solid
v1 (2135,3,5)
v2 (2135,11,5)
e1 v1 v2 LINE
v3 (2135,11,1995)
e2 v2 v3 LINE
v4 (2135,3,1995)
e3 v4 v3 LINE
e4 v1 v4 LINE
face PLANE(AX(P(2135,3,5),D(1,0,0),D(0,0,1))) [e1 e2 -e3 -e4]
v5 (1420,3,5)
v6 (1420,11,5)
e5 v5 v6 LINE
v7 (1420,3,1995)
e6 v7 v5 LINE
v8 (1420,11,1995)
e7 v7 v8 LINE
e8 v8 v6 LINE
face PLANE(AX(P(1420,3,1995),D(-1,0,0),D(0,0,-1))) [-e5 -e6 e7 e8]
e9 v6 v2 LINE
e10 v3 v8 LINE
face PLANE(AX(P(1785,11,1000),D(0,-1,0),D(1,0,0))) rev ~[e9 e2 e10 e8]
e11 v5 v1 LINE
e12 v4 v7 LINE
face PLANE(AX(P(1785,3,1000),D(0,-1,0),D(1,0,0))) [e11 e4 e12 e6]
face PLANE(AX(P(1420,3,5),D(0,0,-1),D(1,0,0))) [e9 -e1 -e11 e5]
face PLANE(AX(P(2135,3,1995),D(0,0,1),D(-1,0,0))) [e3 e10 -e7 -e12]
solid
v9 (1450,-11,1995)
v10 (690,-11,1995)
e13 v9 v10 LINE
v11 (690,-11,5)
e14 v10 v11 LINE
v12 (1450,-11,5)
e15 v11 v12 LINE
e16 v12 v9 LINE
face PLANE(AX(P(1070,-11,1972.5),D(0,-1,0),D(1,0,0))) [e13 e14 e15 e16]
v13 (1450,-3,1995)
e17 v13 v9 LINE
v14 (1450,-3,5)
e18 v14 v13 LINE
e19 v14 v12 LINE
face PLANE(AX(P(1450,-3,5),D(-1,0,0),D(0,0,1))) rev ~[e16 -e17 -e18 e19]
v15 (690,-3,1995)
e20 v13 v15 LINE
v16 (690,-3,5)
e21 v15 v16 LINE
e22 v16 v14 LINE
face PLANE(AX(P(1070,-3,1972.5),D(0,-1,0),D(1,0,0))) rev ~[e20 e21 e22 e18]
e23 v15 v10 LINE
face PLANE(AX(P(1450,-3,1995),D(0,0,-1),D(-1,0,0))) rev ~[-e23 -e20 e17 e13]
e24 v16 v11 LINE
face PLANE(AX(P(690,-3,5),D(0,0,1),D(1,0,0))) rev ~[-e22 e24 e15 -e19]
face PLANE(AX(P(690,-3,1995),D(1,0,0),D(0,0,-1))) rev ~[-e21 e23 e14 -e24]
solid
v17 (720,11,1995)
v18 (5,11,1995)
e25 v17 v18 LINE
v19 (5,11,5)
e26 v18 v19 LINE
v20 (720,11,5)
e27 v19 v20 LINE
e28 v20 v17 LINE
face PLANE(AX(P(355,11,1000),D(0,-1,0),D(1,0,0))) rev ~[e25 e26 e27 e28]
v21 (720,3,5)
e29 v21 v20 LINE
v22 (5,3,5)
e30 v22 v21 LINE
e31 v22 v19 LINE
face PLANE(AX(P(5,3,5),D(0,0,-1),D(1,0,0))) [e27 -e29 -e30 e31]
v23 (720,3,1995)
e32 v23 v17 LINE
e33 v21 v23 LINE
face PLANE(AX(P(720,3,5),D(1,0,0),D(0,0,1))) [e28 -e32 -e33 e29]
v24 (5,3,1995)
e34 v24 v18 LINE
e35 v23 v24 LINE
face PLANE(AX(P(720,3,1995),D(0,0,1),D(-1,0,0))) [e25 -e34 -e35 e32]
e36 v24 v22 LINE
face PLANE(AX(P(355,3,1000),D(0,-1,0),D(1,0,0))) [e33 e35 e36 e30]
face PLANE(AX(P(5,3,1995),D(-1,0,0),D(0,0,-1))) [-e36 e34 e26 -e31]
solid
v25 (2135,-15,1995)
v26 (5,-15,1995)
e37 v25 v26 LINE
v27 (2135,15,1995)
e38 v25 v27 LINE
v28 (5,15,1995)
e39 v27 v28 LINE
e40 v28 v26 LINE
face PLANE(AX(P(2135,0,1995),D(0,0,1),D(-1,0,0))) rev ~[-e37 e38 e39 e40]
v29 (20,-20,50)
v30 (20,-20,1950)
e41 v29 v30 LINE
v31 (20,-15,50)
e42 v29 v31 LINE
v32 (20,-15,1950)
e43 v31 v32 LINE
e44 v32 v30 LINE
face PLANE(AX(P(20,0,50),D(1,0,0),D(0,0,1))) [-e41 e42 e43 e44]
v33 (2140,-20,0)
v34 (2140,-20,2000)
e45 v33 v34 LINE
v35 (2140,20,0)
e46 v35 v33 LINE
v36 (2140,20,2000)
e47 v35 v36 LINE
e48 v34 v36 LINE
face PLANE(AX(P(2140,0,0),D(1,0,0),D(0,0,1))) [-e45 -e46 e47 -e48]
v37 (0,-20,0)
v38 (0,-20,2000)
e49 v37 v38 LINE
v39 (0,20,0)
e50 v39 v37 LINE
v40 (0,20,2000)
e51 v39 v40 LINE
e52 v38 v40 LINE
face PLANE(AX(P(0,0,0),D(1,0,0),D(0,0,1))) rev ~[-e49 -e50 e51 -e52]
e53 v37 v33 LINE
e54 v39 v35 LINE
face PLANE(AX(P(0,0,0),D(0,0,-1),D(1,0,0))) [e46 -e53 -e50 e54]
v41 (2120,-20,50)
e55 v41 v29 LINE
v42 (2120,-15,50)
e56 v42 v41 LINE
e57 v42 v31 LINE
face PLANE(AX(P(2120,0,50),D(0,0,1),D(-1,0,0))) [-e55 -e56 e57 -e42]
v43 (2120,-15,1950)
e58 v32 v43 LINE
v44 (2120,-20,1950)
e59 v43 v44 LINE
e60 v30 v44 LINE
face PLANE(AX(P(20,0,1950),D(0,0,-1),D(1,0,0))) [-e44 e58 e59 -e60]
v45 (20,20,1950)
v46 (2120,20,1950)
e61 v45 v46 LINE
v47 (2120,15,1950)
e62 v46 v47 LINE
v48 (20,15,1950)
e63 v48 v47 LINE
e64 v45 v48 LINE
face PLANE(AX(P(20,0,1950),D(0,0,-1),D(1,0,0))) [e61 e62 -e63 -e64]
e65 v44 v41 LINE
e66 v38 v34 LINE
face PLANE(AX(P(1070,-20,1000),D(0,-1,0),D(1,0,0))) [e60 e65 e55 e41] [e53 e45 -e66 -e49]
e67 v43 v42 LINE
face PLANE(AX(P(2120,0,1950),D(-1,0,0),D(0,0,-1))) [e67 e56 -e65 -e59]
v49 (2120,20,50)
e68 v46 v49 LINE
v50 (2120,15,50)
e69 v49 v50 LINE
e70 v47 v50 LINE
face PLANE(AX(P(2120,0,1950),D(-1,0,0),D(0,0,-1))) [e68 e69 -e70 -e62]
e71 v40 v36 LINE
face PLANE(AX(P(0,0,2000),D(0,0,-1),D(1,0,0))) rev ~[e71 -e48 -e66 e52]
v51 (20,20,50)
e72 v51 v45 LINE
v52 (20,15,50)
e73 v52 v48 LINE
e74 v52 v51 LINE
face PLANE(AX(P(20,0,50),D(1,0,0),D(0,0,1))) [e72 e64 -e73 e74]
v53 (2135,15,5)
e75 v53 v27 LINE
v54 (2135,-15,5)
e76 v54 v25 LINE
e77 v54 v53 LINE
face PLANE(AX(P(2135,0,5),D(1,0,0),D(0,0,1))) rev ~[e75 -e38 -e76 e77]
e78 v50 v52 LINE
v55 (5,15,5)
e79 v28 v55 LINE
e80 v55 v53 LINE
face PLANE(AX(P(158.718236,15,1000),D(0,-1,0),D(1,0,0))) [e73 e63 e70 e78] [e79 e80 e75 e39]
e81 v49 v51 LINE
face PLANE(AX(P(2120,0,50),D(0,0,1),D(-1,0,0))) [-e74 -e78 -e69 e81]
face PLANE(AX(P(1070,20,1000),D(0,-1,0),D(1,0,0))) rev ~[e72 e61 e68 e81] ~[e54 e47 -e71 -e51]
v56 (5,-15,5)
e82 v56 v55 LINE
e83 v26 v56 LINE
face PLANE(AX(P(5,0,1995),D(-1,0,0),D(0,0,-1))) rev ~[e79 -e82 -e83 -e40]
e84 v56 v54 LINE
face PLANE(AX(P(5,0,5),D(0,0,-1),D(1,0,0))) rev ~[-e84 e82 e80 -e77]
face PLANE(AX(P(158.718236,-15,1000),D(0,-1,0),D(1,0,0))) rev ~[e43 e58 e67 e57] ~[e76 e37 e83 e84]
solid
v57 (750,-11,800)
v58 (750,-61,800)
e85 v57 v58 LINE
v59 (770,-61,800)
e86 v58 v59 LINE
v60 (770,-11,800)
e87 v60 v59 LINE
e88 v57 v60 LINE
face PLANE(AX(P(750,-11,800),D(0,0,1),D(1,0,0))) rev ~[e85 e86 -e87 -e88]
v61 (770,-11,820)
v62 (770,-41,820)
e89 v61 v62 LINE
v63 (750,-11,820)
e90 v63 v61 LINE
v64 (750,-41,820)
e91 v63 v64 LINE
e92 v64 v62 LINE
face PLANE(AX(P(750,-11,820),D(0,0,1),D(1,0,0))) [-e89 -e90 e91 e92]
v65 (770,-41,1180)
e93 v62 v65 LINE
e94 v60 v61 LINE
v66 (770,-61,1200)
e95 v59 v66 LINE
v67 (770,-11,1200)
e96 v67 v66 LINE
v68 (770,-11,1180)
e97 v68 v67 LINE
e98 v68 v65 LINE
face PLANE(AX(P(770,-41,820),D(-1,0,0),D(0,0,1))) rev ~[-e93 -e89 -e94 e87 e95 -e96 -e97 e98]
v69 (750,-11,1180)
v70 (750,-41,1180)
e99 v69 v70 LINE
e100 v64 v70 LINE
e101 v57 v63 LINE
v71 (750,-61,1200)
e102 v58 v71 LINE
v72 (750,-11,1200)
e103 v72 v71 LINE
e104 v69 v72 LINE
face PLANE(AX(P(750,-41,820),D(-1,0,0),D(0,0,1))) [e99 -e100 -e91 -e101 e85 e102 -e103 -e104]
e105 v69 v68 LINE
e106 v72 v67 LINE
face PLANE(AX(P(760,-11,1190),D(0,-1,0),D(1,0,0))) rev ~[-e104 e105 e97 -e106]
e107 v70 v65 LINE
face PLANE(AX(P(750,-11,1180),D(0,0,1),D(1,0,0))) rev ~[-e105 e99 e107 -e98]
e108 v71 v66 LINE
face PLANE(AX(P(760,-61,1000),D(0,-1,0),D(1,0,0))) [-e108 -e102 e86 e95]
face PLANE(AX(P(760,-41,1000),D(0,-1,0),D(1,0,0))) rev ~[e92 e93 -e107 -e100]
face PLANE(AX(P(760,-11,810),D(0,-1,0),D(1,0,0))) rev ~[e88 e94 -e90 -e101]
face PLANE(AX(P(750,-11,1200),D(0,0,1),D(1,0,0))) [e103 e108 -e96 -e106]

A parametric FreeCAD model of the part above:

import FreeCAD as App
import Part
import Sketcher

doc = App.newDocument("Part")
body = doc.addObject("PartDesign::Body", "Body")

sketch1 = doc.addObject("Sketcher::SketchObject", "Sketch")
body.addObject(sketch1)
sketch1.AttachmentSupport = (doc.XZ_Plane, [""])
sketch1.MapMode = "FlatFace"
sketch1.addGeometry([
    Part.LineSegment(App.Vector(0, 2000, 0), App.Vector(0, 0, 0)),
    Part.LineSegment(App.Vector(0, 0, 0), App.Vector(2140, 0, 0)),
    Part.LineSegment(App.Vector(2140, 0, 0), App.Vector(2140, 2000, 0)),
    Part.LineSegment(App.Vector(2140, 2000, 0), App.Vector(0, 2000, 0)),
    Part.LineSegment(App.Vector(20, 50, 0), App.Vector(20, 1950, 0)),
    Part.LineSegment(App.Vector(20, 1950, 0), App.Vector(2120, 1950, 0)),
    Part.LineSegment(App.Vector(2120, 1950, 0), App.Vector(2120, 50, 0)),
    Part.LineSegment(App.Vector(2120, 50, 0), App.Vector(20, 50, 0)),
], False)
sketch1.addConstraint([
    Sketcher.Constraint("Coincident", 0, 2, 1, 1),
    Sketcher.Constraint("Coincident", 1, 2, 2, 1),
    Sketcher.Constraint("Coincident", 2, 2, 3, 1),
    Sketcher.Constraint("Coincident", 3, 2, 0, 1),
    Sketcher.Constraint("Coincident", 4, 2, 5, 1),
    Sketcher.Constraint("Coincident", 5, 2, 6, 1),
    Sketcher.Constraint("Coincident", 6, 2, 7, 1),
    Sketcher.Constraint("Coincident", 7, 2, 4, 1),
    Sketcher.Constraint("Vertical", 0),
    Sketcher.Constraint("Horizontal", 1),
    Sketcher.Constraint("Vertical", 2),
    Sketcher.Constraint("Horizontal", 3),
    Sketcher.Constraint("Vertical", 4),
    Sketcher.Constraint("Horizontal", 5),
    Sketcher.Constraint("Vertical", 6),
    Sketcher.Constraint("Horizontal", 7),
    Sketcher.Constraint("Coincident", 0, 2, -1, 1),
    Sketcher.Constraint("DistanceX", 1, 1, 1, 2, 2140.0),
    Sketcher.Constraint("DistanceX", 5, 1, 5, 2, 2100.0),
    Sketcher.Constraint("DistanceY", 0, 2, 0, 1, 2000.0),
    Sketcher.Constraint("DistanceY", 4, 1, 4, 2, 1900.0),
    Sketcher.Constraint("DistanceX", -1, 1, 4, 2, 20.0),
    Sketcher.Constraint("DistanceY", -1, 1, 4, 2, 1950.0),
])
pad1 = doc.addObject("PartDesign::Pad", "Pad")
body.addObject(pad1)
pad1.Profile = sketch1
pad1.Type = "TwoLengths"
pad1.Length = 20
pad1.Length2 = 20

sketch2 = doc.addObject("Sketcher::SketchObject", "Sketch001")
body.addObject(sketch2)
sketch2.AttachmentSupport = (doc.XZ_Plane, [""])
sketch2.MapMode = "FlatFace"
sketch2.addGeometry([
    Part.LineSegment(App.Vector(5, 1995, 0), App.Vector(5, 5, 0)),
    Part.LineSegment(App.Vector(5, 5, 0), App.Vector(2135, 5, 0)),
    Part.LineSegment(App.Vector(2135, 5, 0), App.Vector(2135, 1995, 0)),
    Part.LineSegment(App.Vector(2135, 1995, 0), App.Vector(5, 1995, 0)),
    Part.LineSegment(App.Vector(20, 50, 0), App.Vector(20, 1950, 0)),
    Part.LineSegment(App.Vector(20, 1950, 0), App.Vector(2120, 1950, 0)),
    Part.LineSegment(App.Vector(2120, 1950, 0), App.Vector(2120, 50, 0)),
    Part.LineSegment(App.Vector(2120, 50, 0), App.Vector(20, 50, 0)),
], False)
sketch2.addConstraint([
    Sketcher.Constraint("Coincident", 0, 2, 1, 1),
    Sketcher.Constraint("Coincident", 1, 2, 2, 1),
    Sketcher.Constraint("Coincident", 2, 2, 3, 1),
    Sketcher.Constraint("Coincident", 3, 2, 0, 1),
    Sketcher.Constraint("Coincident", 4, 2, 5, 1),
    Sketcher.Constraint("Coincident", 5, 2, 6, 1),
    Sketcher.Constraint("Coincident", 6, 2, 7, 1),
    Sketcher.Constraint("Coincident", 7, 2, 4, 1),
    Sketcher.Constraint("Vertical", 0),
    Sketcher.Constraint("Horizontal", 1),
    Sketcher.Constraint("Vertical", 2),
    Sketcher.Constraint("Horizontal", 3),
    Sketcher.Constraint("Vertical", 4),
    Sketcher.Constraint("Horizontal", 5),
    Sketcher.Constraint("Vertical", 6),
    Sketcher.Constraint("Horizontal", 7),
    Sketcher.Constraint("DistanceX", 1, 1, 1, 2, 2130.0),
    Sketcher.Constraint("DistanceX", 5, 1, 5, 2, 2100.0),
    Sketcher.Constraint("DistanceY", 0, 2, 0, 1, 1990.0),
    Sketcher.Constraint("DistanceY", 4, 1, 4, 2, 1900.0),
    Sketcher.Constraint("DistanceX", -1, 1, 0, 2, 5.0),
    Sketcher.Constraint("DistanceY", -1, 1, 0, 2, 5.0),
    Sketcher.Constraint("DistanceX", -1, 1, 4, 2, 20.0),
    Sketcher.Constraint("DistanceY", -1, 1, 4, 2, 1950.0),
])
pocket1 = doc.addObject("PartDesign::Pocket", "Pocket")
body.addObject(pocket1)
pocket1.Profile = sketch2
pocket1.Type = "TwoLengths"
pocket1.Length = 15
pocket1.Length2 = 15
pocket1.Reversed = True
body2 = doc.addObject("PartDesign::Body", "Body001")

sketch3 = doc.addObject("Sketcher::SketchObject", "Sketch002")
body2.addObject(sketch3)
sketch3.AttachmentSupport = (doc.getObject("XZ_Plane001"), [""])
sketch3.MapMode = "FlatFace"
sketch3.AttachmentOffset = App.Placement(App.Vector(0, 0, -3), App.Rotation())
sketch3.addGeometry([
    Part.LineSegment(App.Vector(5, 1995, 0), App.Vector(5, 5, 0)),
    Part.LineSegment(App.Vector(5, 5, 0), App.Vector(720, 5, 0)),
    Part.LineSegment(App.Vector(720, 5, 0), App.Vector(720, 1995, 0)),
    Part.LineSegment(App.Vector(720, 1995, 0), App.Vector(5, 1995, 0)),
], False)
sketch3.addConstraint([
    Sketcher.Constraint("Coincident", 0, 2, 1, 1),
    Sketcher.Constraint("Coincident", 1, 2, 2, 1),
    Sketcher.Constraint("Coincident", 2, 2, 3, 1),
    Sketcher.Constraint("Coincident", 3, 2, 0, 1),
    Sketcher.Constraint("Vertical", 0),
    Sketcher.Constraint("Horizontal", 1),
    Sketcher.Constraint("Vertical", 2),
    Sketcher.Constraint("Horizontal", 3),
    Sketcher.Constraint("DistanceX", 1, 1, 1, 2, 715.0),
    Sketcher.Constraint("DistanceY", 0, 2, 0, 1, 1990.0),
    Sketcher.Constraint("DistanceX", -1, 1, 0, 2, 5.0),
    Sketcher.Constraint("DistanceY", -1, 1, 0, 2, 5.0),
])
pad2 = doc.addObject("PartDesign::Pad", "Pad001")
body2.addObject(pad2)
pad2.Profile = sketch3
pad2.Length = 8
pad2.Reversed = True
body3 = doc.addObject("PartDesign::Body", "Body002")

sketch4 = doc.addObject("Sketcher::SketchObject", "Sketch003")
body3.addObject(sketch4)
sketch4.AttachmentSupport = (doc.getObject("XZ_Plane002"), [""])
sketch4.MapMode = "FlatFace"
sketch4.AttachmentOffset = App.Placement(App.Vector(0, 0, -3), App.Rotation())
sketch4.addGeometry([
    Part.LineSegment(App.Vector(2135, 5, 0), App.Vector(2135, 1995, 0)),
    Part.LineSegment(App.Vector(2135, 1995, 0), App.Vector(1420, 1995, 0)),
    Part.LineSegment(App.Vector(1420, 1995, 0), App.Vector(1420, 5, 0)),
    Part.LineSegment(App.Vector(1420, 5, 0), App.Vector(2135, 5, 0)),
], False)
sketch4.addConstraint([
    Sketcher.Constraint("Coincident", 0, 2, 1, 1),
    Sketcher.Constraint("Coincident", 1, 2, 2, 1),
    Sketcher.Constraint("Coincident", 2, 2, 3, 1),
    Sketcher.Constraint("Coincident", 3, 2, 0, 1),
    Sketcher.Constraint("Vertical", 0),
    Sketcher.Constraint("Horizontal", 1),
    Sketcher.Constraint("Vertical", 2),
    Sketcher.Constraint("Horizontal", 3),
    Sketcher.Constraint("DistanceX", 1, 2, 1, 1, 715.0),
    Sketcher.Constraint("DistanceY", 0, 1, 0, 2, 1990.0),
    Sketcher.Constraint("DistanceX", -1, 1, 0, 2, 2135.0),
    Sketcher.Constraint("DistanceY", -1, 1, 0, 2, 1995.0),
])
pad3 = doc.addObject("PartDesign::Pad", "Pad002")
body3.addObject(pad3)
pad3.Profile = sketch4
pad3.Length = 8
pad3.Reversed = True
body4 = doc.addObject("PartDesign::Body", "Body003")

sketch5 = doc.addObject("Sketcher::SketchObject", "Sketch004")
body4.addObject(sketch5)
sketch5.AttachmentSupport = (doc.getObject("XZ_Plane003"), [""])
sketch5.MapMode = "FlatFace"
sketch5.AttachmentOffset = App.Placement(App.Vector(0, 0, 3), App.Rotation())
sketch5.addGeometry([
    Part.LineSegment(App.Vector(1450, 1995, 0), App.Vector(690, 1995, 0)),
    Part.LineSegment(App.Vector(690, 1995, 0), App.Vector(690, 5, 0)),
    Part.LineSegment(App.Vector(690, 5, 0), App.Vector(1450, 5, 0)),
    Part.LineSegment(App.Vector(1450, 5, 0), App.Vector(1450, 1995, 0)),
], False)
sketch5.addConstraint([
    Sketcher.Constraint("Coincident", 0, 2, 1, 1),
    Sketcher.Constraint("Coincident", 1, 2, 2, 1),
    Sketcher.Constraint("Coincident", 2, 2, 3, 1),
    Sketcher.Constraint("Coincident", 3, 2, 0, 1),
    Sketcher.Constraint("Horizontal", 0),
    Sketcher.Constraint("Vertical", 1),
    Sketcher.Constraint("Horizontal", 2),
    Sketcher.Constraint("Vertical", 3),
    Sketcher.Constraint("DistanceX", 0, 2, 0, 1, 760.0),
    Sketcher.Constraint("DistanceY", 1, 2, 1, 1, 1990.0),
    Sketcher.Constraint("DistanceX", -1, 1, 0, 2, 690.0),
    Sketcher.Constraint("DistanceY", -1, 1, 0, 2, 1995.0),
])
pad4 = doc.addObject("PartDesign::Pad", "Pad003")
body4.addObject(pad4)
pad4.Profile = sketch5
pad4.Length = 8
body5 = doc.addObject("PartDesign::Body", "Body004")

sketch6 = doc.addObject("Sketcher::SketchObject", "Sketch005")
body5.addObject(sketch6)
sketch6.AttachmentSupport = (doc.getObject("XZ_Plane004"), [""])
sketch6.MapMode = "FlatFace"
sketch6.AttachmentOffset = App.Placement(App.Vector(0, 0, 11), App.Rotation())
sketch6.addGeometry([
    Part.LineSegment(App.Vector(750, 1200, 0), App.Vector(750, 1180, 0)),
    Part.LineSegment(App.Vector(750, 1180, 0), App.Vector(770, 1180, 0)),
    Part.LineSegment(App.Vector(770, 1180, 0), App.Vector(770, 1200, 0)),
    Part.LineSegment(App.Vector(770, 1200, 0), App.Vector(750, 1200, 0)),
], False)
sketch6.addConstraint([
    Sketcher.Constraint("Coincident", 0, 2, 1, 1),
    Sketcher.Constraint("Coincident", 1, 2, 2, 1),
    Sketcher.Constraint("Coincident", 2, 2, 3, 1),
    Sketcher.Constraint("Coincident", 3, 2, 0, 1),
    Sketcher.Constraint("Vertical", 0),
    Sketcher.Constraint("Horizontal", 1),
    Sketcher.Constraint("Vertical", 2),
    Sketcher.Constraint("Horizontal", 3),
    Sketcher.Constraint("Equal", 3, 0),
    Sketcher.Constraint("DistanceX", 1, 1, 1, 2, 20.0),
    Sketcher.Constraint("DistanceX", -1, 1, 0, 2, 750.0),
    Sketcher.Constraint("DistanceY", -1, 1, 0, 2, 1180.0),
])
pad5 = doc.addObject("PartDesign::Pad", "Pad004")
body5.addObject(pad5)
pad5.Profile = sketch6
pad5.Length = 50
body6 = doc.addObject("PartDesign::Body", "Body005")

sketch7 = doc.addObject("Sketcher::SketchObject", "Sketch006")
body6.addObject(sketch7)
sketch7.AttachmentSupport = (doc.getObject("XZ_Plane005"), [""])
sketch7.MapMode = "FlatFace"
sketch7.AttachmentOffset = App.Placement(App.Vector(0, 0, 11), App.Rotation())
sketch7.addGeometry([
    Part.LineSegment(App.Vector(750, 820, 0), App.Vector(750, 800, 0)),
    Part.LineSegment(App.Vector(750, 800, 0), App.Vector(770, 800, 0)),
    Part.LineSegment(App.Vector(770, 800, 0), App.Vector(770, 820, 0)),
    Part.LineSegment(App.Vector(770, 820, 0), App.Vector(750, 820, 0)),
], False)
sketch7.addConstraint([
    Sketcher.Constraint("Coincident", 0, 2, 1, 1),
    Sketcher.Constraint("Coincident", 1, 2, 2, 1),
    Sketcher.Constraint("Coincident", 2, 2, 3, 1),
    Sketcher.Constraint("Coincident", 3, 2, 0, 1),
    Sketcher.Constraint("Vertical", 0),
    Sketcher.Constraint("Horizontal", 1),
    Sketcher.Constraint("Vertical", 2),
    Sketcher.Constraint("Horizontal", 3),
    Sketcher.Constraint("Equal", 3, 0),
    Sketcher.Constraint("DistanceX", 1, 1, 1, 2, 20.0),
    Sketcher.Constraint("DistanceX", -1, 1, 0, 2, 750.0),
    Sketcher.Constraint("DistanceY", -1, 1, 0, 2, 800.0),
])
pad6 = doc.addObject("PartDesign::Pad", "Pad005")
body6.addObject(pad6)
pad6.Profile = sketch7
pad6.Length = 50
body5.AllowCompound = True
doc.recompute()

boolean = doc.addObject("PartDesign::Boolean", "Boolean")
body5.addObject(boolean)
boolean.Type = "Fuse"
boolean.addObjects([body6])

sketch8 = doc.addObject("Sketcher::SketchObject", "Sketch007")
body5.addObject(sketch8)
sketch8.AttachmentSupport = (doc.getObject("XZ_Plane004"), [""])
sketch8.MapMode = "FlatFace"
sketch8.AttachmentOffset = App.Placement(App.Vector(0, 0, 41), App.Rotation())
sketch8.addGeometry([
    Part.LineSegment(App.Vector(750, 1180, 0), App.Vector(750, 820, 0)),
    Part.LineSegment(App.Vector(750, 820, 0), App.Vector(770, 820, 0)),
    Part.LineSegment(App.Vector(770, 820, 0), App.Vector(770, 1180, 0)),
    Part.LineSegment(App.Vector(770, 1180, 0), App.Vector(750, 1180, 0)),
], False)
sketch8.addConstraint([
    Sketcher.Constraint("Coincident", 0, 2, 1, 1),
    Sketcher.Constraint("Coincident", 1, 2, 2, 1),
    Sketcher.Constraint("Coincident", 2, 2, 3, 1),
    Sketcher.Constraint("Coincident", 3, 2, 0, 1),
    Sketcher.Constraint("Vertical", 0),
    Sketcher.Constraint("Horizontal", 1),
    Sketcher.Constraint("Vertical", 2),
    Sketcher.Constraint("Horizontal", 3),
    Sketcher.Constraint("DistanceX", 1, 1, 1, 2, 20.0),
    Sketcher.Constraint("DistanceY", 0, 2, 0, 1, 360.0),
    Sketcher.Constraint("DistanceX", -1, 1, 0, 2, 750.0),
    Sketcher.Constraint("DistanceY", -1, 1, 0, 2, 820.0),
])
pad7 = doc.addObject("PartDesign::Pad", "Pad006")
body5.addObject(pad7)
pad7.Profile = sketch8
pad7.Length = 20

doc.recompute()
